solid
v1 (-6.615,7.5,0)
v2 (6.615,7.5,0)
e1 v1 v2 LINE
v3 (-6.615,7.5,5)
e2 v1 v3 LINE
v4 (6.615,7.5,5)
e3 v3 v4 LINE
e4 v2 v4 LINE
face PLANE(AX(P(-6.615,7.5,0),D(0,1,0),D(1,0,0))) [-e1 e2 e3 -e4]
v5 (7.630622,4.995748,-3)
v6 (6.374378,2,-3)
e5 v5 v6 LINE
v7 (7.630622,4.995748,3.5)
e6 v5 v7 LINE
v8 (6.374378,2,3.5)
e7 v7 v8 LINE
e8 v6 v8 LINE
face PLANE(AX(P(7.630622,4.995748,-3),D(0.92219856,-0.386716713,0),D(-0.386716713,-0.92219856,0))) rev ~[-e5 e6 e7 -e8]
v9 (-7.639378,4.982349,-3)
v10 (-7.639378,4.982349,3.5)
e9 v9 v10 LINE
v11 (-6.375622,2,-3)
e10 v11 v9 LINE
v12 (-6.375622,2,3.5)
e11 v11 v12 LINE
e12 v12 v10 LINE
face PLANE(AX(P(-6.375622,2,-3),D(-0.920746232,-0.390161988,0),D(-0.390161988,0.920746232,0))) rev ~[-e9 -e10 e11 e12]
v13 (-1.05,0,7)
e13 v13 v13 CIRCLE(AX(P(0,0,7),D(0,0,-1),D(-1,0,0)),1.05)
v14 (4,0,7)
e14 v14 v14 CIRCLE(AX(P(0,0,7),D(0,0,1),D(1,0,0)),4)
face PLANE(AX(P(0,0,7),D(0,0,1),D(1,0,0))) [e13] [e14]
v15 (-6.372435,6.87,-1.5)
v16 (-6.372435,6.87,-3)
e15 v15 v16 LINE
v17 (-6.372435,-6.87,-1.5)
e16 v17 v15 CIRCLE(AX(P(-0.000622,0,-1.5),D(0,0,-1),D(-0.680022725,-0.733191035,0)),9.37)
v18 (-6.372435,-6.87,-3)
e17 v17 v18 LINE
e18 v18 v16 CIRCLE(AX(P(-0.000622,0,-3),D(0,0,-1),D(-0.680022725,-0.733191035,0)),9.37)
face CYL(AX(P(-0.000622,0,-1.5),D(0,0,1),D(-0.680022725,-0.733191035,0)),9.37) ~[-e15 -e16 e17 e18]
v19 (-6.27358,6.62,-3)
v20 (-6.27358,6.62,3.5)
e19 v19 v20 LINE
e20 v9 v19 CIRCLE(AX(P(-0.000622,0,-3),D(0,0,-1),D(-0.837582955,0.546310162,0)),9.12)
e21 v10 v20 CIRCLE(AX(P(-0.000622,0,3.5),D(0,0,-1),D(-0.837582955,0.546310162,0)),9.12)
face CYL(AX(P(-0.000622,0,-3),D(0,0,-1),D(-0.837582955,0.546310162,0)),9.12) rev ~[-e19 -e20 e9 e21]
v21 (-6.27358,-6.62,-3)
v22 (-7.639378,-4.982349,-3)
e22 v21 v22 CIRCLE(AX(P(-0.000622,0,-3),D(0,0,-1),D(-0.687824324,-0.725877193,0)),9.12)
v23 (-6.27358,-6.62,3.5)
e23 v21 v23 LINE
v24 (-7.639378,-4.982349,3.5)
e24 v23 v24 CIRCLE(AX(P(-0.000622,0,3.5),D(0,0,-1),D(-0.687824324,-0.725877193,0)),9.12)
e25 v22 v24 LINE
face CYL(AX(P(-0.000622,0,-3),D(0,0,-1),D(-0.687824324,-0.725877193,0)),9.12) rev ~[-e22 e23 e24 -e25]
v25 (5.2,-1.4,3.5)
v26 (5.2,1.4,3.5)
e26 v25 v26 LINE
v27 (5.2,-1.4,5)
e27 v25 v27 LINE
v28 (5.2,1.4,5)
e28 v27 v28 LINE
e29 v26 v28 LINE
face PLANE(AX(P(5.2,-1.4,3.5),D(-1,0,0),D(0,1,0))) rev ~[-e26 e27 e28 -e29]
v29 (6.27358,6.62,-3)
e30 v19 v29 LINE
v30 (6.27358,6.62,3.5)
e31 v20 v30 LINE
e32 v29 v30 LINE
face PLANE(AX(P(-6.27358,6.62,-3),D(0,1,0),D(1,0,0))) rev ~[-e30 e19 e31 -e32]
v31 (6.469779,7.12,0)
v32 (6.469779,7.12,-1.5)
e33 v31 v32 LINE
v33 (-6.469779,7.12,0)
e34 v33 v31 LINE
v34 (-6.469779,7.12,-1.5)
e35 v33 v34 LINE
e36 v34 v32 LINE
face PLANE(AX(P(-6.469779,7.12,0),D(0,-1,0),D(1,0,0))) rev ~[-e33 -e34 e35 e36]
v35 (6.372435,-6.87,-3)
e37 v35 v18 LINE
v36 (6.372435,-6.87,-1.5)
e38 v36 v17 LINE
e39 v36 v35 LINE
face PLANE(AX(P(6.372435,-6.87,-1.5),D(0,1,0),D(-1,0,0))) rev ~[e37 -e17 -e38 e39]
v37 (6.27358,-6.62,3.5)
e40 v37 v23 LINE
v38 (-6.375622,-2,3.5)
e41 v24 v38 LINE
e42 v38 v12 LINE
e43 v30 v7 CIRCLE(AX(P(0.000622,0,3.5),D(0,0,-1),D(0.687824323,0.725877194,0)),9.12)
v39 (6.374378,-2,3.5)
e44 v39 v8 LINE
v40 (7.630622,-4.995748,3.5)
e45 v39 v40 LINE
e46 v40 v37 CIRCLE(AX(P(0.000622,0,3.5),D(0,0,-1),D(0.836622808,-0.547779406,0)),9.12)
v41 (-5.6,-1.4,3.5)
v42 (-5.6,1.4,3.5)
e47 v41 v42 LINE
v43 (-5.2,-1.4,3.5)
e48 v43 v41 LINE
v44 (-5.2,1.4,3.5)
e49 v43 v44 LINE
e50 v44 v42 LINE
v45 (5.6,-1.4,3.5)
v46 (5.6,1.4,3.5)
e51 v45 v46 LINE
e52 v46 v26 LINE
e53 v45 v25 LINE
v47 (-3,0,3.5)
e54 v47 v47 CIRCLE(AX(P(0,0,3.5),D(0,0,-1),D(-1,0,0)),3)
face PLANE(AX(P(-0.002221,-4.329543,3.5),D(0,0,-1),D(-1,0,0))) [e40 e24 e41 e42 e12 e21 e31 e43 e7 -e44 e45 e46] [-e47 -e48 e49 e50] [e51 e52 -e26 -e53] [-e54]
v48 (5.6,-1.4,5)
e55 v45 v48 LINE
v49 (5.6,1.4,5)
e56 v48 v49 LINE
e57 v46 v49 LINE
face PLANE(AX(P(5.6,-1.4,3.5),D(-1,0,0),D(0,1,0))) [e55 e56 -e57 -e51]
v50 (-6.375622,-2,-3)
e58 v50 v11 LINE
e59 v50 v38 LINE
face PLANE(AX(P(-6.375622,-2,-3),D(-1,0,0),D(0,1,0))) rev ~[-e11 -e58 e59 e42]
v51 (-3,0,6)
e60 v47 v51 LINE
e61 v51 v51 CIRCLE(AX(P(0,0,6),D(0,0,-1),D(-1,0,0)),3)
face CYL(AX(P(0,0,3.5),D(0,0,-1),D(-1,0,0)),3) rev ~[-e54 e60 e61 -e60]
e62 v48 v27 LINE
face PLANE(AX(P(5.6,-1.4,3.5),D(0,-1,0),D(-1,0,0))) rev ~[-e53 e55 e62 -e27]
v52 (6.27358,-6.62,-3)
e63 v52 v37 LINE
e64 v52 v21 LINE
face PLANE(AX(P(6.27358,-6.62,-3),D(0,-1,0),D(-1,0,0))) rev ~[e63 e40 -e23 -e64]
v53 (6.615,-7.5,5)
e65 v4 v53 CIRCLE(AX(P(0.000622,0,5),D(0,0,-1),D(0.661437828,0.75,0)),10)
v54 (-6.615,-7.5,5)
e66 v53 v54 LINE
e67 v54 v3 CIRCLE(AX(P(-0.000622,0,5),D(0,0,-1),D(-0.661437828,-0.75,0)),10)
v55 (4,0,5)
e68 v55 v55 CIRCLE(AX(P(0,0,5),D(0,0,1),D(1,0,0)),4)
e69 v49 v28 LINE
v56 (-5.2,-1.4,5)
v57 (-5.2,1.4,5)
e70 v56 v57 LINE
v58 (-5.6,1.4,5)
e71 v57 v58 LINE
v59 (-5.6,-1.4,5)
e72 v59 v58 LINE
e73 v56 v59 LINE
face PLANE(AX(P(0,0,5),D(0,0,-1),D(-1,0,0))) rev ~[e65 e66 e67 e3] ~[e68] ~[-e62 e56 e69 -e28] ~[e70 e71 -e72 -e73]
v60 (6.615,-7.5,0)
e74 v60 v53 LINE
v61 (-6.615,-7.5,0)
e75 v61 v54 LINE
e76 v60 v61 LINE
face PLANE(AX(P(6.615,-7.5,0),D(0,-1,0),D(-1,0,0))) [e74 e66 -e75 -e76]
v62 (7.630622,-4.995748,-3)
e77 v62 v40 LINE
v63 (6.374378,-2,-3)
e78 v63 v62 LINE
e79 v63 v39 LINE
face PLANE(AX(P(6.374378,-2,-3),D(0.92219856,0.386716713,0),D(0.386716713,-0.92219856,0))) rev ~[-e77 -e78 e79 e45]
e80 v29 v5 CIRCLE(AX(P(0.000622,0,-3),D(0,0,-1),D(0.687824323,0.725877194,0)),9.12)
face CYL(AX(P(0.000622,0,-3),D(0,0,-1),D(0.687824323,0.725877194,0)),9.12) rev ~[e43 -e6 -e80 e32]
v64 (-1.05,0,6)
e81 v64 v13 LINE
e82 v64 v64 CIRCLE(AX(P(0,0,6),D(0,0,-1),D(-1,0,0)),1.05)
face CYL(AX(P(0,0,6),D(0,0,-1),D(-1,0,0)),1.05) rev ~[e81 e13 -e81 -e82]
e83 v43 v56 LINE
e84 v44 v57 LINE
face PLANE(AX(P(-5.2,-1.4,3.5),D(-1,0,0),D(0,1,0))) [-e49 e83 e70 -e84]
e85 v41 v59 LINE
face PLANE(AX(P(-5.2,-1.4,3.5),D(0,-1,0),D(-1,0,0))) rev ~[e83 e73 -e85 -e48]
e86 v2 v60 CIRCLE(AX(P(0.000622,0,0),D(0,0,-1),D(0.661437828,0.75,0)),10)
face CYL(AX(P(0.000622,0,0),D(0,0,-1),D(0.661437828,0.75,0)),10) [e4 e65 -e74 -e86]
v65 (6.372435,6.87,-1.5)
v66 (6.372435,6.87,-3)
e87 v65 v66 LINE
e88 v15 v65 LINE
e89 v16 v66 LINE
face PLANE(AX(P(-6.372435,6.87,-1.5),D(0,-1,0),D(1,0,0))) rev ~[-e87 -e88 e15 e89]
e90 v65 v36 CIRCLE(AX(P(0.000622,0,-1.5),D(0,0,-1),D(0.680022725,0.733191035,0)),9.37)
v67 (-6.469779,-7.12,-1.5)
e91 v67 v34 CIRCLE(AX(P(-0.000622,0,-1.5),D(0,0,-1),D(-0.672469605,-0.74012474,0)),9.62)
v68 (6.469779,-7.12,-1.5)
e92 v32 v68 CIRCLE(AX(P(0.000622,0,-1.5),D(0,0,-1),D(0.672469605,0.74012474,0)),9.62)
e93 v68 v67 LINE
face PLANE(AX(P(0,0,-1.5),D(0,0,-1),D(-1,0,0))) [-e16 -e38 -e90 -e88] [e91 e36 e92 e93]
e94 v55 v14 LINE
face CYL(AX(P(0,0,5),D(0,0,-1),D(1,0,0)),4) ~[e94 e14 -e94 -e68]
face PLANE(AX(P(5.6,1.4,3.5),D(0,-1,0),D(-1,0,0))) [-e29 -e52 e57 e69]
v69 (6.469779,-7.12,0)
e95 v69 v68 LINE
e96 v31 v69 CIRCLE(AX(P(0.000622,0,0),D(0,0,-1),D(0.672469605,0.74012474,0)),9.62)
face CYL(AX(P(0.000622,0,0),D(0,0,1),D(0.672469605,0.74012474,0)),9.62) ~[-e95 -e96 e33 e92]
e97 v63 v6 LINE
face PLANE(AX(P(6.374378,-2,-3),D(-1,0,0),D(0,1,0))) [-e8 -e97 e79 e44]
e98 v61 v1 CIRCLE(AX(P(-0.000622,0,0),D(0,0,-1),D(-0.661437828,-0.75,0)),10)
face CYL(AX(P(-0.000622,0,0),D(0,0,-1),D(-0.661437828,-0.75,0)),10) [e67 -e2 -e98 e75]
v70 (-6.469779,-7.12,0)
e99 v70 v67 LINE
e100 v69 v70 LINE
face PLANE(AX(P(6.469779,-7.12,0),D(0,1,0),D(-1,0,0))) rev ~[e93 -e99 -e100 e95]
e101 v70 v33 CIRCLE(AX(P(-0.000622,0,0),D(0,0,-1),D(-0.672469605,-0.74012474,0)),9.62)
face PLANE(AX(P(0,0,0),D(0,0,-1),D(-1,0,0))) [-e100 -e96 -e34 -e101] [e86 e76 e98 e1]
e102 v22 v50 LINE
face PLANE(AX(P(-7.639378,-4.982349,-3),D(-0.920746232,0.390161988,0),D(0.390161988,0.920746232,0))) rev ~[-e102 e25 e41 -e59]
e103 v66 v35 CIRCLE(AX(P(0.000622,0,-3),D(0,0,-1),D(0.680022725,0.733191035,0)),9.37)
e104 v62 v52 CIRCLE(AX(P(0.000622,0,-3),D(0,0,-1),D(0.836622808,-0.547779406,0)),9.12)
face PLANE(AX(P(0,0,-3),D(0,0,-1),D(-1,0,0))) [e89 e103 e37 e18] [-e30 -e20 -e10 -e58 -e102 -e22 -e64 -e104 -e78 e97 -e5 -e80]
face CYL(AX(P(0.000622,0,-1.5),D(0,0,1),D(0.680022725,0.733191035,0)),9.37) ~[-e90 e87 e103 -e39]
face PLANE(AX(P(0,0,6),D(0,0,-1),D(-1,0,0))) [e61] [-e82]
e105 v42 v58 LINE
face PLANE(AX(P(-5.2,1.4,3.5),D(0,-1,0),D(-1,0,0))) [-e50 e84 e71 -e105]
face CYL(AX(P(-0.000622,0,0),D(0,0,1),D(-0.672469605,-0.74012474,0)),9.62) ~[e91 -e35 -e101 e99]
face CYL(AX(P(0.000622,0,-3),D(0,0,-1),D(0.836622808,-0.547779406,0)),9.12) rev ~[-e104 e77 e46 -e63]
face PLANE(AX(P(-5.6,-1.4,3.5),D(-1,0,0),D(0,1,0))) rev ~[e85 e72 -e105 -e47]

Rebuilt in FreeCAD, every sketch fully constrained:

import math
import FreeCAD as App
import Part
import Sketcher


def add_polygon(sketch, points):
    """Adds a closed chain of lines whose ends are joined by coincident constraints."""
    first, n = sketch.GeometryCount, len(points)
    for a, b in zip(points, points[1:] + points[:1]):
        sketch.addGeometry(Part.LineSegment(App.Vector(*a, 0), App.Vector(*b, 0)), False)
    for i in range(n):
        sketch.addConstraint(Sketcher.Constraint("Coincident", first + i, 2, first + (i + 1) % n, 1))

doc = App.newDocument("Part")
params = doc.addObject("Spreadsheet::Sheet", "Params")
for row, (alias, value) in enumerate([
    ("sketch1_radius", "10 mm"),
    ("sketch1_width", "13.23 mm"),
    ("pad1_length", "5 mm"),
    ("sketch2_diameter", "8 mm"),
    ("pad2_length", "2 mm"),
    ("sketch3_radius", "9.62 mm"),
    ("pad3_length", "1.5 mm"),
    ("sketch4_radius", "9.37 mm"),
    ("pad4_length", "1.5 mm"),
    ("sketch5_height", "4 mm"),
    ("sketch5_radius", "9.12 mm"),
    ("pocket1_length", "6.5 mm"),
    ("sketch6_diameter", "6 mm"),
    ("pocket2_length", "2.5 mm"),
    ("sketch7_diameter", "2.1 mm"),
    ("pocket3_length", "2.5 mm"),
    ("sketch8_width", "0.4 mm"),
    ("sketch8_height", "2.8 mm"),
    ("pocket4_length", "2.5 mm"),
], start=1):
    params.set(f"A{row}", alias)
    params.set(f"B{row}", "=" + value)
    params.setAlias(f"B{row}", alias)

body = doc.addObject("PartDesign::Body", "Body")

sketch1 = body.newObject("Sketcher::SketchObject", "Sketch")
sketch1.AttachmentSupport = (doc.getObject("XY_Plane"), [""])
sketch1.MapMode = "FlatFace"
sketch1.addGeometry(Part.LineSegment(App.Vector(7, 8, 0), App.Vector(-7, 8, 0)), False)
sketch1.addGeometry(Part.ArcOfCircle(Part.Circle(App.Vector(0, 0, 0), App.Vector(0, 0, 1), 10), math.radians(131), math.radians(229)), False)
sketch1.addGeometry(Part.LineSegment(App.Vector(-7, -8, 0), App.Vector(7, -8, 0)), False)
sketch1.addGeometry(Part.ArcOfCircle(Part.Circle(App.Vector(0, 0, 0), App.Vector(0, 0, 1), 10), math.radians(-49), math.radians(49)), False)
sketch1.addConstraint(Sketcher.Constraint("Coincident", 0, 2, 1, 1))
sketch1.addConstraint(Sketcher.Constraint("Coincident", 1, 2, 2, 1))
sketch1.addConstraint(Sketcher.Constraint("Coincident", 2, 2, 3, 1))
sketch1.addConstraint(Sketcher.Constraint("Coincident", 3, 2, 0, 1))
sketch1.addConstraint(Sketcher.Constraint("Horizontal", 0))
sketch1.addConstraint(Sketcher.Constraint("Horizontal", 2))
sketch1.addConstraint(Sketcher.Constraint("Equal", 1, 3))
sketch1.addConstraint(Sketcher.Constraint("Symmetric", 1, 3, 3, 3, -1, 1))
sketch1.addConstraint(Sketcher.Constraint("Symmetric", 0, 2, 1, 2, -1))
sketch1.addConstraint(Sketcher.Constraint("Radius", 1, 10.0))
sketch1.addConstraint(Sketcher.Constraint("DistanceY", 1, 2, 0, 2, 15.0))
sketch1.addConstraint(Sketcher.Constraint("DistanceX", 0, 2, 0, 1, 13.23))
sketch1.setExpression("Constraints[9]", "Params.sketch1_radius")
sketch1.setExpression("Constraints[11]", "Params.sketch1_width")
pad1 = body.newObject("PartDesign::Pad", "Pad")
pad1.Profile = sketch1
pad1.setExpression("Length", "Params.pad1_length")

sketch2 = body.newObject("Sketcher::SketchObject", "Sketch001")
sketch2.AttachmentSupport = (doc.getObject("XY_Plane"), [""])
sketch2.MapMode = "FlatFace"
sketch2.AttachmentOffset = App.Placement(App.Vector(0, 0, 5), App.Rotation())
sketch2.addGeometry(Part.Circle(App.Vector(0, 0, 0), App.Vector(0, 0, 1), 4), False)
sketch2.addConstraint(Sketcher.Constraint("Coincident", 0, 3, -1, 1))
sketch2.addConstraint(Sketcher.Constraint("Diameter", 0, 8.0))
sketch2.setExpression("Constraints[1]", "Params.sketch2_diameter")
pad2 = body.newObject("PartDesign::Pad", "Pad001")
pad2.Profile = sketch2
pad2.setExpression("Length", "Params.pad2_length")

sketch3 = body.newObject("Sketcher::SketchObject", "Sketch002")
sketch3.AttachmentSupport = (doc.getObject("XY_Plane"), [""])
sketch3.MapMode = "FlatFace"
sketch3.addGeometry(Part.LineSegment(App.Vector(6, -7, 0), App.Vector(-6, -7, 0)), False)
sketch3.addGeometry(Part.ArcOfCircle(Part.Circle(App.Vector(0, 0, 0), App.Vector(0, 0, 1), 10), math.radians(132), math.radians(228)), False)
sketch3.addGeometry(Part.LineSegment(App.Vector(-6, 7, 0), App.Vector(6, 7, 0)), False)
sketch3.addGeometry(Part.ArcOfCircle(Part.Circle(App.Vector(0, 0, 0), App.Vector(0, 0, 1), 10), math.radians(-48), math.radians(48)), False)
sketch3.addConstraint(Sketcher.Constraint("Coincident", 0, 2, 1, 2))
sketch3.addConstraint(Sketcher.Constraint("Coincident", 1, 1, 2, 1))
sketch3.addConstraint(Sketcher.Constraint("Coincident", 2, 2, 3, 2))
sketch3.addConstraint(Sketcher.Constraint("Coincident", 3, 1, 0, 1))
sketch3.addConstraint(Sketcher.Constraint("Horizontal", 0))
sketch3.addConstraint(Sketcher.Constraint("Horizontal", 2))
sketch3.addConstraint(Sketcher.Constraint("Equal", 1, 3))
sketch3.addConstraint(Sketcher.Constraint("Symmetric", 1, 3, 3, 3, -1, 1))
sketch3.addConstraint(Sketcher.Constraint("Symmetric", 0, 2, 1, 1, -1))
sketch3.addConstraint(Sketcher.Constraint("Radius", 1, 9.62))
sketch3.addConstraint(Sketcher.Constraint("DistanceY", 0, 2, -1, 1, 7.12))
sketch3.addConstraint(Sketcher.Constraint("DistanceX", 0, 2, 0, 1, 12.939559))
sketch3.setExpression("Constraints[9]", "Params.sketch3_radius")
pad3 = body.newObject("PartDesign::Pad", "Pad002")
pad3.Profile = sketch3
pad3.setExpression("Length", "Params.pad3_length")
pad3.Reversed = True

sketch4 = body.newObject("Sketcher::SketchObject", "Sketch003")
sketch4.AttachmentSupport = (doc.getObject("XY_Plane"), [""])
sketch4.MapMode = "FlatFace"
sketch4.AttachmentOffset = App.Placement(App.Vector(0, 0, -1.5), App.Rotation())
sketch4.addGeometry(Part.LineSegment(App.Vector(6, -7, 0), App.Vector(-6, -7, 0)), False)
sketch4.addGeometry(Part.ArcOfCircle(Part.Circle(App.Vector(0, 0, 0), App.Vector(0, 0, 1), 9), math.radians(133), math.radians(227)), False)
sketch4.addGeometry(Part.LineSegment(App.Vector(-6, 7, 0), App.Vector(6, 7, 0)), False)
sketch4.addGeometry(Part.ArcOfCircle(Part.Circle(App.Vector(0, 0, 0), App.Vector(0, 0, 1), 9), math.radians(-47), math.radians(47)), False)
sketch4.addConstraint(Sketcher.Constraint("Coincident", 0, 2, 1, 2))
sketch4.addConstraint(Sketcher.Constraint("Coincident", 1, 1, 2, 1))
sketch4.addConstraint(Sketcher.Constraint("Coincident", 2, 2, 3, 2))
sketch4.addConstraint(Sketcher.Constraint("Coincident", 3, 1, 0, 1))
sketch4.addConstraint(Sketcher.Constraint("Horizontal", 0))
sketch4.addConstraint(Sketcher.Constraint("Horizontal", 2))
sketch4.addConstraint(Sketcher.Constraint("Equal", 1, 3))
sketch4.addConstraint(Sketcher.Constraint("Symmetric", 1, 3, 3, 3, -1, 1))
sketch4.addConstraint(Sketcher.Constraint("Symmetric", 0, 2, 1, 1, -1))
sketch4.addConstraint(Sketcher.Constraint("Radius", 1, 9.37))
sketch4.addConstraint(Sketcher.Constraint("DistanceY", 0, 2, -1, 1, 6.87))
sketch4.addConstraint(Sketcher.Constraint("DistanceX", 0, 2, 0, 1, 12.744869))
sketch4.setExpression("Constraints[9]", "Params.sketch4_radius")
pad4 = body.newObject("PartDesign::Pad", "Pad003")
pad4.Profile = sketch4
pad4.setExpression("Length", "Params.pad4_length")
pad4.Reversed = True

sketch5 = body.newObject("Sketcher::SketchObject", "Sketch004")
sketch5.AttachmentSupport = (doc.getObject("XY_Plane"), [""])
sketch5.MapMode = "FlatFace"
sketch5.AttachmentOffset = App.Placement(App.Vector(0, 0, -3), App.Rotation())
sketch5.addGeometry(Part.LineSegment(App.Vector(6.4, -2, 0), App.Vector(7.6, -5, 0)), False)
sketch5.addGeometry(Part.ArcOfCircle(Part.Circle(App.Vector(0, 0, 0), App.Vector(0, 0, 1), 9.1), math.radians(-46.54), math.radians(-33.21)), False)
sketch5.addGeometry(Part.LineSegment(App.Vector(6.3, -6.6, 0), App.Vector(-6.3, -6.6, 0)), False)
sketch5.addGeometry(Part.ArcOfCircle(Part.Circle(App.Vector(0, 0, 0), App.Vector(0, 0, 1), 9.1), math.radians(-146.89), math.radians(-133.46)), False)
sketch5.addGeometry(Part.LineSegment(App.Vector(-7.6, -5, 0), App.Vector(-6.4, -2, 0)), False)
sketch5.addGeometry(Part.LineSegment(App.Vector(-6.4, -2, 0), App.Vector(-6.4, 2, 0)), False)
sketch5.addGeometry(Part.LineSegment(App.Vector(-6.4, 2, 0), App.Vector(-7.6, 5, 0)), False)
sketch5.addGeometry(Part.ArcOfCircle(Part.Circle(App.Vector(0, 0, 0), App.Vector(0, 0, 1), 9.1), math.radians(133.46), math.radians(146.89)), False)
sketch5.addGeometry(Part.LineSegment(App.Vector(-6.3, 6.6, 0), App.Vector(6.3, 6.6, 0)), False)
sketch5.addGeometry(Part.ArcOfCircle(Part.Circle(App.Vector(0, 0, 0), App.Vector(0, 0, 1), 9.1), math.radians(33.21), math.radians(46.54)), False)
sketch5.addGeometry(Part.LineSegment(App.Vector(7.6, 5, 0), App.Vector(6.4, 2, 0)), False)
sketch5.addGeometry(Part.LineSegment(App.Vector(6.4, 2, 0), App.Vector(6.4, -2, 0)), False)
sketch5.addConstraint(Sketcher.Constraint("Coincident", 0, 2, 1, 2))
sketch5.addConstraint(Sketcher.Constraint("Coincident", 1, 1, 2, 1))
sketch5.addConstraint(Sketcher.Constraint("Coincident", 2, 2, 3, 2))
sketch5.addConstraint(Sketcher.Constraint("Coincident", 3, 1, 4, 1))
sketch5.addConstraint(Sketcher.Constraint("Coincident", 4, 2, 5, 1))
sketch5.addConstraint(Sketcher.Constraint("Coincident", 5, 2, 6, 1))
sketch5.addConstraint(Sketcher.Constraint("Coincident", 6, 2, 7, 2))
sketch5.addConstraint(Sketcher.Constraint("Coincident", 7, 1, 8, 1))
sketch5.addConstraint(Sketcher.Constraint("Coincident", 8, 2, 9, 2))
sketch5.addConstraint(Sketcher.Constraint("Coincident", 9, 1, 10, 1))
sketch5.addConstraint(Sketcher.Constraint("Coincident", 10, 2, 11, 1))
sketch5.addConstraint(Sketcher.Constraint("Coincident", 11, 2, 0, 1))
sketch5.addConstraint(Sketcher.Constraint("Horizontal", 2))
sketch5.addConstraint(Sketcher.Constraint("Vertical", 5))
sketch5.addConstraint(Sketcher.Constraint("Horizontal", 8))
sketch5.addConstraint(Sketcher.Constraint("Vertical", 11))
sketch5.addConstraint(Sketcher.Constraint("Coincident", 7, 3, 3, 3))
sketch5.addConstraint(Sketcher.Constraint("Coincident", 9, 3, 1, 3))
sketch5.addConstraint(Sketcher.Constraint("Equal", 1, 3))
sketch5.addConstraint(Sketcher.Constraint("Equal", 3, 7))
sketch5.addConstraint(Sketcher.Constraint("Equal", 7, 9))
sketch5.addConstraint(Sketcher.Constraint("Symmetric", 1, 3, 3, 3, -1, 1))
sketch5.addConstraint(Sketcher.Constraint("Symmetric", 3, 1, 6, 2, -1))
sketch5.addConstraint(Sketcher.Constraint("Horizontal", 5, 2, 10, 2))
sketch5.addConstraint(Sketcher.Constraint("Horizontal", 4, 2, 11, 2))
sketch5.addConstraint(Sketcher.Constraint("Vertical", 2, 2, 7, 1))
sketch5.addConstraint(Sketcher.Constraint("Vertical", 0, 2, 9, 1))
sketch5.addConstraint(Sketcher.Constraint("Equal", 4, 6))
sketch5.addConstraint(Sketcher.Constraint("DistanceY", 5, 1, 5, 2, 4.0))
sketch5.addConstraint(Sketcher.Constraint("Radius", 1, 9.12))
sketch5.addConstraint(Sketcher.Constraint("DistanceY", 1, 1, -1, 1, 6.62))
sketch5.addConstraint(Sketcher.Constraint("DistanceX", 1, 3, 0, 2, 7.63))
sketch5.addConstraint(Sketcher.Constraint("DistanceX", 3, 1, 1, 3, 7.64))
sketch5.addConstraint(Sketcher.Constraint("DistanceX", 4, 2, 7, 3, 6.375))
sketch5.addConstraint(Sketcher.Constraint("DistanceX", 3, 3, 10, 2, 6.375))
sketch5.addConstraint(Sketcher.Constraint("DistanceX", 2, 2, 2, 1, 12.547159))
sketch5.setExpression("Constraints[28]", "Params.sketch5_height")
sketch5.setExpression("Constraints[29]", "Params.sketch5_radius")
pocket1 = body.newObject("PartDesign::Pocket", "Pocket")
pocket1.Profile = sketch5
pocket1.setExpression("Length", "Params.pocket1_length")
pocket1.Reversed = True

sketch6 = body.newObject("Sketcher::SketchObject", "Sketch005")
sketch6.AttachmentSupport = (doc.getObject("XY_Plane"), [""])
sketch6.MapMode = "FlatFace"
sketch6.AttachmentOffset = App.Placement(App.Vector(0, 0, 3.5), App.Rotation())
sketch6.addGeometry(Part.Circle(App.Vector(0, 0, 0), App.Vector(0, 0, 1), 3), False)
sketch6.addConstraint(Sketcher.Constraint("Coincident", 0, 3, -1, 1))
sketch6.addConstraint(Sketcher.Constraint("Diameter", 0, 6.0))
sketch6.setExpression("Constraints[1]", "Params.sketch6_diameter")
pocket2 = body.newObject("PartDesign::Pocket", "Pocket001")
pocket2.Profile = sketch6
pocket2.setExpression("Length", "Params.pocket2_length")
pocket2.Reversed = True

sketch7 = body.newObject("Sketcher::SketchObject", "Sketch006")
sketch7.AttachmentSupport = (doc.getObject("XY_Plane"), [""])
sketch7.MapMode = "FlatFace"
sketch7.AttachmentOffset = App.Placement(App.Vector(0, 0, 6), App.Rotation())
sketch7.addGeometry(Part.Circle(App.Vector(0, 0, 0), App.Vector(0, 0, 1), 1.1), False)
sketch7.addConstraint(Sketcher.Constraint("Coincident", 0, 3, -1, 1))
sketch7.addConstraint(Sketcher.Constraint("Diameter", 0, 2.1))
sketch7.setExpression("Constraints[1]", "Params.sketch7_diameter")
pocket3 = body.newObject("PartDesign::Pocket", "Pocket002")
pocket3.Profile = sketch7
pocket3.setExpression("Length", "Params.pocket3_length")
pocket3.Reversed = True

sketch8 = body.newObject("Sketcher::SketchObject", "Sketch007")
sketch8.AttachmentSupport = (doc.getObject("XY_Plane"), [""])
sketch8.MapMode = "FlatFace"
sketch8.AttachmentOffset = App.Placement(App.Vector(0, 0, 3.5), App.Rotation())
add_polygon(sketch8, [(5.6, 1.4), (5.6, -1.4), (5.2, -1.4), (5.2, 1.4)])
add_polygon(sketch8, [(-5.2, 1.4), (-5.2, -1.4), (-5.6, -1.4), (-5.6, 1.4)])
sketch8.addConstraint(Sketcher.Constraint("Vertical", 0))
sketch8.addConstraint(Sketcher.Constraint("Horizontal", 1))
sketch8.addConstraint(Sketcher.Constraint("Vertical", 2))
sketch8.addConstraint(Sketcher.Constraint("Horizontal", 3))
sketch8.addConstraint(Sketcher.Constraint("Vertical", 4))
sketch8.addConstraint(Sketcher.Constraint("Horizontal", 5))
sketch8.addConstraint(Sketcher.Constraint("Vertical", 6))
sketch8.addConstraint(Sketcher.Constraint("Horizontal", 7))
sketch8.addConstraint(Sketcher.Constraint("Symmetric", 2, 2, 4, 2, -1, 1))
sketch8.addConstraint(Sketcher.Constraint("Symmetric", 0, 2, 6, 2, -1, 1))
sketch8.addConstraint(Sketcher.Constraint("Horizontal", 1, 2, 4, 2))
sketch8.addConstraint(Sketcher.Constraint("DistanceX", 1, 2, 1, 1, 0.4))
sketch8.addConstraint(Sketcher.Constraint("DistanceY", 0, 2, 0, 1, 2.8))
sketch8.addConstraint(Sketcher.Constraint("DistanceX", -1, 1, 0, 2, 5.6))
sketch8.setExpression("Constraints[19]", "Params.sketch8_width")
sketch8.setExpression("Constraints[20]", "Params.sketch8_height")
pocket4 = body.newObject("PartDesign::Pocket", "Pocket003")
pocket4.Profile = sketch8
pocket4.setExpression("Length", "Params.pocket4_length")
pocket4.Reversed = True

doc.recompute()
